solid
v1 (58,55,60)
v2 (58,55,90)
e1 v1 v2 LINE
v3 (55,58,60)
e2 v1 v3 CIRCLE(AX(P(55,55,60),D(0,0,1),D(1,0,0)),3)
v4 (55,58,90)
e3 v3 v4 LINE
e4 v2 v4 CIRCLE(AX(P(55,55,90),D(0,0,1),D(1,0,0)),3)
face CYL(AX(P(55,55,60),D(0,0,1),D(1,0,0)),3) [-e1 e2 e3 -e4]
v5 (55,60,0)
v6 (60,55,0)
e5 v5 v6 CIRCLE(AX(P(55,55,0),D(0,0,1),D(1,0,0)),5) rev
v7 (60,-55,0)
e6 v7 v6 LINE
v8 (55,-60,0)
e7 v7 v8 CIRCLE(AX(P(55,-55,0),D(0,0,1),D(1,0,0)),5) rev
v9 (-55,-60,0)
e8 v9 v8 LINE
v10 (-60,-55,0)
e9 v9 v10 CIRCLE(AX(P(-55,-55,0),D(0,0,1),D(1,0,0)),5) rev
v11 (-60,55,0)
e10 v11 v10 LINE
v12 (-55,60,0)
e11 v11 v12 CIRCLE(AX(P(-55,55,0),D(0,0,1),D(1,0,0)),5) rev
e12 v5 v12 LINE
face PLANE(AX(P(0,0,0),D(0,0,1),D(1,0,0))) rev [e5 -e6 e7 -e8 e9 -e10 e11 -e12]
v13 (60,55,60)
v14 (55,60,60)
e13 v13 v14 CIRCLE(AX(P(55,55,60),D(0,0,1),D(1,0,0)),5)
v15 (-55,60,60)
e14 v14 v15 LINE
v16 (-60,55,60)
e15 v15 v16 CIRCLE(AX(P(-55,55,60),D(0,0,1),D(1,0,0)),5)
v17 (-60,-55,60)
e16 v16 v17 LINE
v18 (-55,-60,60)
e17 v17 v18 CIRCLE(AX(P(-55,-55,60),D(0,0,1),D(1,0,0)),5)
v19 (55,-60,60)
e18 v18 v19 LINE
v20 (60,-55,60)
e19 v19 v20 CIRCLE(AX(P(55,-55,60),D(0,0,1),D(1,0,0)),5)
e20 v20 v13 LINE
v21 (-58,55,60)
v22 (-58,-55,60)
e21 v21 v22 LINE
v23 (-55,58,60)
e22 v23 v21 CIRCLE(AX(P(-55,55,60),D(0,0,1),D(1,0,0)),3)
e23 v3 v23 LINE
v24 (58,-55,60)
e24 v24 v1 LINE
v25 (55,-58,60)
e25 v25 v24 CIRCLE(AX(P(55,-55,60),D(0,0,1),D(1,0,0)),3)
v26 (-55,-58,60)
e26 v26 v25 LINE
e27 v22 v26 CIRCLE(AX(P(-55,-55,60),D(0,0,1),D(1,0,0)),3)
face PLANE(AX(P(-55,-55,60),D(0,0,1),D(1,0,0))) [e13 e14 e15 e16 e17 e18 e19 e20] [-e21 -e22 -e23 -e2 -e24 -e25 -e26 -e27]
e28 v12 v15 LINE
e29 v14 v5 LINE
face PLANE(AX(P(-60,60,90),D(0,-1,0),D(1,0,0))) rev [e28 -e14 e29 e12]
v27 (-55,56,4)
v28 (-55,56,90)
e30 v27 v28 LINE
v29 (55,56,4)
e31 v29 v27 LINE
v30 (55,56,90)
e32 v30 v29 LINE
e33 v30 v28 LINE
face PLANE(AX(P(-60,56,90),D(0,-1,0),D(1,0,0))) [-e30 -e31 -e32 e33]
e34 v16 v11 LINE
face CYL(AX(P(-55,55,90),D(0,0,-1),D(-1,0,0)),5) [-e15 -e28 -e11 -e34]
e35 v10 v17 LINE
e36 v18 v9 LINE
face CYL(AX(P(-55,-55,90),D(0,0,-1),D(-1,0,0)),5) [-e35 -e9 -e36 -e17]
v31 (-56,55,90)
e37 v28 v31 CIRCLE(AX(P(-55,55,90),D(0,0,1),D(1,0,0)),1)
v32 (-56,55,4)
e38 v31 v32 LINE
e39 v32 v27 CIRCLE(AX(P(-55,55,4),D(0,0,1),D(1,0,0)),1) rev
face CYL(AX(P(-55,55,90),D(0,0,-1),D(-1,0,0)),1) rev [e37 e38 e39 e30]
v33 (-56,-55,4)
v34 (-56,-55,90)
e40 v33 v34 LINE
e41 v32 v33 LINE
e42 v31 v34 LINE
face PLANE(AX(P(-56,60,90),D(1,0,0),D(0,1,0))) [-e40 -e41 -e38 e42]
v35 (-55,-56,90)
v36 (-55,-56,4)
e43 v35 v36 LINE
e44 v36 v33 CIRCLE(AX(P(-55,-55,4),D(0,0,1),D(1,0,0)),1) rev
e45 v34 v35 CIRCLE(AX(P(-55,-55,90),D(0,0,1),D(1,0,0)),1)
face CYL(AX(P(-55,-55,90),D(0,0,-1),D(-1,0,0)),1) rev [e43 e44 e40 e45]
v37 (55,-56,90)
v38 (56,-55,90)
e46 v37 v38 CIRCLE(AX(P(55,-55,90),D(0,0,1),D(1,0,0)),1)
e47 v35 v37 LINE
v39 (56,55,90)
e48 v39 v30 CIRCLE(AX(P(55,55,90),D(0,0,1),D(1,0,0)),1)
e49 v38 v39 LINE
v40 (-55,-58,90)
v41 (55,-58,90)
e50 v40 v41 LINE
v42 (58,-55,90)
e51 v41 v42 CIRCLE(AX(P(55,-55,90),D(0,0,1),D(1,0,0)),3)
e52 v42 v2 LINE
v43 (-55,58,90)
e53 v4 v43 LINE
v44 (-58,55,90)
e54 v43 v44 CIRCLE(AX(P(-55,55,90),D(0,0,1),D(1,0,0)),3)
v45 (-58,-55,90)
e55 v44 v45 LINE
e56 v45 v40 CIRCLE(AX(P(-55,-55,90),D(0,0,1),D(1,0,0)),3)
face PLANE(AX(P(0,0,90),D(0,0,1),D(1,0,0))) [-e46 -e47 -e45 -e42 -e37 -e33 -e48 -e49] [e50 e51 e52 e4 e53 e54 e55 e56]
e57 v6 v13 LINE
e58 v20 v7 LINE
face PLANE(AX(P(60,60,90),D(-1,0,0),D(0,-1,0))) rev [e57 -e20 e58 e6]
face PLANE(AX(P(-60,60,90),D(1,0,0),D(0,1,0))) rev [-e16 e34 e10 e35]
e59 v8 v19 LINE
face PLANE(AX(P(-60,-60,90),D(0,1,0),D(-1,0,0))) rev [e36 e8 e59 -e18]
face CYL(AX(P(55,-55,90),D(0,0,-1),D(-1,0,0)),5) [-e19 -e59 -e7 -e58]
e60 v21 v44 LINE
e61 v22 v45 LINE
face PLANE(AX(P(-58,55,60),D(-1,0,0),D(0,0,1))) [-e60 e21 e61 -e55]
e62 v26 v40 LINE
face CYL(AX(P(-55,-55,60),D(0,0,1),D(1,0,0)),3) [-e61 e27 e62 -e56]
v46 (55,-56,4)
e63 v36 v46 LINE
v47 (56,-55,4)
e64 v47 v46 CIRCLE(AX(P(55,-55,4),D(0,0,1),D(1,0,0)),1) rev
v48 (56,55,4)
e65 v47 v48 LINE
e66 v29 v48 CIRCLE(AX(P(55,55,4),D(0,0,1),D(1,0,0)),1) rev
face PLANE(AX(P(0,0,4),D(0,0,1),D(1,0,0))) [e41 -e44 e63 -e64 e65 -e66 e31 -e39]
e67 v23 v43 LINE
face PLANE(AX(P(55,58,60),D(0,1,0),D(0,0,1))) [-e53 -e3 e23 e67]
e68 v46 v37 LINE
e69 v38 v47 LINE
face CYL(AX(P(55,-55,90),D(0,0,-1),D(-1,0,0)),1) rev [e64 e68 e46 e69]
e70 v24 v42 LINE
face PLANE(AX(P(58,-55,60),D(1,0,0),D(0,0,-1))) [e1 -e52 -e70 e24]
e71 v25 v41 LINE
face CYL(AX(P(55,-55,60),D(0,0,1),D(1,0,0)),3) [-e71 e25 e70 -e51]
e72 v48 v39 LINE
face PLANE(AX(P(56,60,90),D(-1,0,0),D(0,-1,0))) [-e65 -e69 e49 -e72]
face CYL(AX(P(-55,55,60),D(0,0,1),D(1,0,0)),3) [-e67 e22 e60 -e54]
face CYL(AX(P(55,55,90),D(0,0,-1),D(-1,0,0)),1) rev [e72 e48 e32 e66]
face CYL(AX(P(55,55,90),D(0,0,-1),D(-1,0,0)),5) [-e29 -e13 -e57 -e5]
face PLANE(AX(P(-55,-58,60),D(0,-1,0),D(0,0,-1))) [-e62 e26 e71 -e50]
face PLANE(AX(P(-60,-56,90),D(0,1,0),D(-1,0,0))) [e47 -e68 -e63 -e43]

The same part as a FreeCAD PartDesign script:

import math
import FreeCAD as App
import Part
import Sketcher

V = App.Vector


def edges_at(feature, points):
    """Names of the edges that pass closest to the given points."""
    edges = feature.Shape.Edges
    near = lambda p: min(range(len(edges)), key=lambda i: edges[i].distToShape(Part.Vertex(*p))[0])
    return sorted({f"Edge{near(p) + 1}" for p in points})


def faces_at(feature, points):
    """Names of the faces that lie closest to the given points."""
    faces = feature.Shape.Faces
    near = lambda p: min(range(len(faces)), key=lambda i: faces[i].distToShape(Part.Vertex(*p))[0])
    return sorted({f"Face{near(p) + 1}" for p in points})

doc = App.newDocument("Part")
body = doc.addObject("PartDesign::Body", "Body")

sketch1 = body.newObject("Sketcher::SketchObject", "Sketch")
sketch1.AttachmentSupport = (doc.getObject("XY_Plane"), [""])
sketch1.MapMode = "FlatFace"
sketch1.addGeometry(Part.LineSegment(V(-60, 60, 0), V(-60, -60, 0)), False)
sketch1.addGeometry(Part.LineSegment(V(-60, -60, 0), V(60, -60, 0)), False)
sketch1.addGeometry(Part.LineSegment(V(60, -60, 0), V(60, 60, 0)), False)
sketch1.addGeometry(Part.LineSegment(V(60, 60, 0), V(-60, 60, 0)), False)
sketch1.addConstraint(Sketcher.Constraint("Coincident", 0, 2, 1, 1))
sketch1.addConstraint(Sketcher.Constraint("Coincident", 1, 2, 2, 1))
sketch1.addConstraint(Sketcher.Constraint("Coincident", 2, 2, 3, 1))
sketch1.addConstraint(Sketcher.Constraint("Coincident", 3, 2, 0, 1))
sketch1.addConstraint(Sketcher.Constraint("Vertical", 0))
sketch1.addConstraint(Sketcher.Constraint("Horizontal", 1))
sketch1.addConstraint(Sketcher.Constraint("Vertical", 2))
sketch1.addConstraint(Sketcher.Constraint("Horizontal", 3))
sketch1.addConstraint(Sketcher.Constraint("Symmetric", 0, 2, 2, 2, -1, 1))
sketch1.addConstraint(Sketcher.Constraint("Equal", 3, 0))
sketch1.addConstraint(Sketcher.Constraint("DistanceX", 1, 1, 1, 2, 120.0))
pad1 = body.newObject("PartDesign::Pad", "Pad")
pad1.Profile = sketch1
pad1.Length = 90
doc.recompute()

fillet = body.newObject("PartDesign::Fillet", "Fillet")
fillet.Base = (pad1, edges_at(pad1, [
    (60, -60, 45),
    (-60, -60, 45),
    (-60, 60, 45),
    (60, 60, 45),
]))
fillet.Radius = 5
doc.recompute()

thickness = body.newObject("PartDesign::Thickness", "Thickness")
thickness.Base = (fillet, faces_at(fillet, [(0, 0, 90)]))
thickness.Value = 4
thickness.Reversed = True
thickness.Join = "Intersection"

sketch2 = body.newObject("Sketcher::SketchObject", "Sketch001")
sketch2.AttachmentSupport = (doc.getObject("XY_Plane"), [""])
sketch2.MapMode = "FlatFace"
sketch2.AttachmentOffset = App.Placement(V(0, 0, 90), App.Rotation())
sketch2.addGeometry(Part.LineSegment(V(-55, -60, 0), V(55, -60, 0)), False)
sketch2.addGeometry(Part.ArcOfCircle(Part.Circle(V(55, -55, 0), V(0, 0, 1), 5), math.radians(-90), math.radians(0)), False)
sketch2.addGeometry(Part.LineSegment(V(60, -55, 0), V(60, 55, 0)), False)
sketch2.addGeometry(Part.ArcOfCircle(Part.Circle(V(55, 55, 0), V(0, 0, 1), 5), math.radians(0), math.radians(90)), False)
sketch2.addGeometry(Part.LineSegment(V(55, 60, 0), V(-55, 60, 0)), False)
sketch2.addGeometry(Part.ArcOfCircle(Part.Circle(V(-55, 55, 0), V(0, 0, 1), 5), math.radians(90), math.radians(180)), False)
sketch2.addGeometry(Part.LineSegment(V(-60, 55, 0), V(-60, -55, 0)), False)
sketch2.addGeometry(Part.ArcOfCircle(Part.Circle(V(-55, -55, 0), V(0, 0, 1), 5), math.radians(180), math.radians(270)), False)
sketch2.addGeometry(Part.LineSegment(V(-55, 58, 0), V(55, 58, 0)), False)
sketch2.addGeometry(Part.ArcOfCircle(Part.Circle(V(55, 55, 0), V(0, 0, 1), 3), math.radians(0), math.radians(90)), False)
sketch2.addGeometry(Part.LineSegment(V(58, 55, 0), V(58, -55, 0)), False)
sketch2.addGeometry(Part.ArcOfCircle(Part.Circle(V(55, -55, 0), V(0, 0, 1), 3), math.radians(-90), math.radians(0)), False)
sketch2.addGeometry(Part.LineSegment(V(55, -58, 0), V(-55, -58, 0)), False)
sketch2.addGeometry(Part.ArcOfCircle(Part.Circle(V(-55, -55, 0), V(0, 0, 1), 3), math.radians(180), math.radians(270)), False)
sketch2.addGeometry(Part.LineSegment(V(-58, -55, 0), V(-58, 55, 0)), False)
sketch2.addGeometry(Part.ArcOfCircle(Part.Circle(V(-55, 55, 0), V(0, 0, 1), 3), math.radians(90), math.radians(180)), False)
sketch2.addConstraint(Sketcher.Constraint("Tangent", 0, 2, 1, 1))
sketch2.addConstraint(Sketcher.Constraint("Tangent", 1, 2, 2, 1))
sketch2.addConstraint(Sketcher.Constraint("Tangent", 2, 2, 3, 1))
sketch2.addConstraint(Sketcher.Constraint("Tangent", 3, 2, 4, 1))
sketch2.addConstraint(Sketcher.Constraint("Tangent", 4, 2, 5, 1))
sketch2.addConstraint(Sketcher.Constraint("Tangent", 5, 2, 6, 1))
sketch2.addConstraint(Sketcher.Constraint("Tangent", 6, 2, 7, 1))
sketch2.addConstraint(Sketcher.Constraint("Tangent", 7, 2, 0, 1))
sketch2.addConstraint(Sketcher.Constraint("Tangent", 8, 2, 9, 2))
sketch2.addConstraint(Sketcher.Constraint("Tangent", 9, 1, 10, 1))
sketch2.addConstraint(Sketcher.Constraint("Tangent", 10, 2, 11, 2))
sketch2.addConstraint(Sketcher.Constraint("Tangent", 11, 1, 12, 1))
sketch2.addConstraint(Sketcher.Constraint("Tangent", 12, 2, 13, 2))
sketch2.addConstraint(Sketcher.Constraint("Tangent", 13, 1, 14, 1))
sketch2.addConstraint(Sketcher.Constraint("Tangent", 14, 2, 15, 2))
sketch2.addConstraint(Sketcher.Constraint("Tangent", 15, 1, 8, 1))
sketch2.addConstraint(Sketcher.Constraint("Horizontal", 0))
sketch2.addConstraint(Sketcher.Constraint("Vertical", 2))
sketch2.addConstraint(Sketcher.Constraint("Horizontal", 4))
sketch2.addConstraint(Sketcher.Constraint("Vertical", 6))
sketch2.addConstraint(Sketcher.Constraint("Horizontal", 8))
sketch2.addConstraint(Sketcher.Constraint("Vertical", 10))
sketch2.addConstraint(Sketcher.Constraint("Horizontal", 12))
sketch2.addConstraint(Sketcher.Constraint("Vertical", 14))
sketch2.addConstraint(Sketcher.Constraint("Coincident", 9, 3, 3, 3))
sketch2.addConstraint(Sketcher.Constraint("Coincident", 11, 3, 1, 3))
sketch2.addConstraint(Sketcher.Constraint("Coincident", 13, 3, 7, 3))
sketch2.addConstraint(Sketcher.Constraint("Equal", 1, 3))
sketch2.addConstraint(Sketcher.Constraint("Equal", 3, 5))
sketch2.addConstraint(Sketcher.Constraint("Equal", 5, 7))
sketch2.addConstraint(Sketcher.Constraint("Equal", 13, 15))
sketch2.addConstraint(Sketcher.Constraint("Symmetric", 1, 3, 5, 3, -1, 1))
sketch2.addConstraint(Sketcher.Constraint("Equal", 12, 2))
sketch2.addConstraint(Sketcher.Constraint("Radius", 1, 5.0))
sketch2.addConstraint(Sketcher.Constraint("Radius", 9, 3.0))
sketch2.addConstraint(Sketcher.Constraint("DistanceX", 0, 1, 0, 2, 110.0))
pocket1 = body.newObject("PartDesign::Pocket", "Pocket")
pocket1.Profile = sketch2
pocket1.Length = 30

doc.recompute()
